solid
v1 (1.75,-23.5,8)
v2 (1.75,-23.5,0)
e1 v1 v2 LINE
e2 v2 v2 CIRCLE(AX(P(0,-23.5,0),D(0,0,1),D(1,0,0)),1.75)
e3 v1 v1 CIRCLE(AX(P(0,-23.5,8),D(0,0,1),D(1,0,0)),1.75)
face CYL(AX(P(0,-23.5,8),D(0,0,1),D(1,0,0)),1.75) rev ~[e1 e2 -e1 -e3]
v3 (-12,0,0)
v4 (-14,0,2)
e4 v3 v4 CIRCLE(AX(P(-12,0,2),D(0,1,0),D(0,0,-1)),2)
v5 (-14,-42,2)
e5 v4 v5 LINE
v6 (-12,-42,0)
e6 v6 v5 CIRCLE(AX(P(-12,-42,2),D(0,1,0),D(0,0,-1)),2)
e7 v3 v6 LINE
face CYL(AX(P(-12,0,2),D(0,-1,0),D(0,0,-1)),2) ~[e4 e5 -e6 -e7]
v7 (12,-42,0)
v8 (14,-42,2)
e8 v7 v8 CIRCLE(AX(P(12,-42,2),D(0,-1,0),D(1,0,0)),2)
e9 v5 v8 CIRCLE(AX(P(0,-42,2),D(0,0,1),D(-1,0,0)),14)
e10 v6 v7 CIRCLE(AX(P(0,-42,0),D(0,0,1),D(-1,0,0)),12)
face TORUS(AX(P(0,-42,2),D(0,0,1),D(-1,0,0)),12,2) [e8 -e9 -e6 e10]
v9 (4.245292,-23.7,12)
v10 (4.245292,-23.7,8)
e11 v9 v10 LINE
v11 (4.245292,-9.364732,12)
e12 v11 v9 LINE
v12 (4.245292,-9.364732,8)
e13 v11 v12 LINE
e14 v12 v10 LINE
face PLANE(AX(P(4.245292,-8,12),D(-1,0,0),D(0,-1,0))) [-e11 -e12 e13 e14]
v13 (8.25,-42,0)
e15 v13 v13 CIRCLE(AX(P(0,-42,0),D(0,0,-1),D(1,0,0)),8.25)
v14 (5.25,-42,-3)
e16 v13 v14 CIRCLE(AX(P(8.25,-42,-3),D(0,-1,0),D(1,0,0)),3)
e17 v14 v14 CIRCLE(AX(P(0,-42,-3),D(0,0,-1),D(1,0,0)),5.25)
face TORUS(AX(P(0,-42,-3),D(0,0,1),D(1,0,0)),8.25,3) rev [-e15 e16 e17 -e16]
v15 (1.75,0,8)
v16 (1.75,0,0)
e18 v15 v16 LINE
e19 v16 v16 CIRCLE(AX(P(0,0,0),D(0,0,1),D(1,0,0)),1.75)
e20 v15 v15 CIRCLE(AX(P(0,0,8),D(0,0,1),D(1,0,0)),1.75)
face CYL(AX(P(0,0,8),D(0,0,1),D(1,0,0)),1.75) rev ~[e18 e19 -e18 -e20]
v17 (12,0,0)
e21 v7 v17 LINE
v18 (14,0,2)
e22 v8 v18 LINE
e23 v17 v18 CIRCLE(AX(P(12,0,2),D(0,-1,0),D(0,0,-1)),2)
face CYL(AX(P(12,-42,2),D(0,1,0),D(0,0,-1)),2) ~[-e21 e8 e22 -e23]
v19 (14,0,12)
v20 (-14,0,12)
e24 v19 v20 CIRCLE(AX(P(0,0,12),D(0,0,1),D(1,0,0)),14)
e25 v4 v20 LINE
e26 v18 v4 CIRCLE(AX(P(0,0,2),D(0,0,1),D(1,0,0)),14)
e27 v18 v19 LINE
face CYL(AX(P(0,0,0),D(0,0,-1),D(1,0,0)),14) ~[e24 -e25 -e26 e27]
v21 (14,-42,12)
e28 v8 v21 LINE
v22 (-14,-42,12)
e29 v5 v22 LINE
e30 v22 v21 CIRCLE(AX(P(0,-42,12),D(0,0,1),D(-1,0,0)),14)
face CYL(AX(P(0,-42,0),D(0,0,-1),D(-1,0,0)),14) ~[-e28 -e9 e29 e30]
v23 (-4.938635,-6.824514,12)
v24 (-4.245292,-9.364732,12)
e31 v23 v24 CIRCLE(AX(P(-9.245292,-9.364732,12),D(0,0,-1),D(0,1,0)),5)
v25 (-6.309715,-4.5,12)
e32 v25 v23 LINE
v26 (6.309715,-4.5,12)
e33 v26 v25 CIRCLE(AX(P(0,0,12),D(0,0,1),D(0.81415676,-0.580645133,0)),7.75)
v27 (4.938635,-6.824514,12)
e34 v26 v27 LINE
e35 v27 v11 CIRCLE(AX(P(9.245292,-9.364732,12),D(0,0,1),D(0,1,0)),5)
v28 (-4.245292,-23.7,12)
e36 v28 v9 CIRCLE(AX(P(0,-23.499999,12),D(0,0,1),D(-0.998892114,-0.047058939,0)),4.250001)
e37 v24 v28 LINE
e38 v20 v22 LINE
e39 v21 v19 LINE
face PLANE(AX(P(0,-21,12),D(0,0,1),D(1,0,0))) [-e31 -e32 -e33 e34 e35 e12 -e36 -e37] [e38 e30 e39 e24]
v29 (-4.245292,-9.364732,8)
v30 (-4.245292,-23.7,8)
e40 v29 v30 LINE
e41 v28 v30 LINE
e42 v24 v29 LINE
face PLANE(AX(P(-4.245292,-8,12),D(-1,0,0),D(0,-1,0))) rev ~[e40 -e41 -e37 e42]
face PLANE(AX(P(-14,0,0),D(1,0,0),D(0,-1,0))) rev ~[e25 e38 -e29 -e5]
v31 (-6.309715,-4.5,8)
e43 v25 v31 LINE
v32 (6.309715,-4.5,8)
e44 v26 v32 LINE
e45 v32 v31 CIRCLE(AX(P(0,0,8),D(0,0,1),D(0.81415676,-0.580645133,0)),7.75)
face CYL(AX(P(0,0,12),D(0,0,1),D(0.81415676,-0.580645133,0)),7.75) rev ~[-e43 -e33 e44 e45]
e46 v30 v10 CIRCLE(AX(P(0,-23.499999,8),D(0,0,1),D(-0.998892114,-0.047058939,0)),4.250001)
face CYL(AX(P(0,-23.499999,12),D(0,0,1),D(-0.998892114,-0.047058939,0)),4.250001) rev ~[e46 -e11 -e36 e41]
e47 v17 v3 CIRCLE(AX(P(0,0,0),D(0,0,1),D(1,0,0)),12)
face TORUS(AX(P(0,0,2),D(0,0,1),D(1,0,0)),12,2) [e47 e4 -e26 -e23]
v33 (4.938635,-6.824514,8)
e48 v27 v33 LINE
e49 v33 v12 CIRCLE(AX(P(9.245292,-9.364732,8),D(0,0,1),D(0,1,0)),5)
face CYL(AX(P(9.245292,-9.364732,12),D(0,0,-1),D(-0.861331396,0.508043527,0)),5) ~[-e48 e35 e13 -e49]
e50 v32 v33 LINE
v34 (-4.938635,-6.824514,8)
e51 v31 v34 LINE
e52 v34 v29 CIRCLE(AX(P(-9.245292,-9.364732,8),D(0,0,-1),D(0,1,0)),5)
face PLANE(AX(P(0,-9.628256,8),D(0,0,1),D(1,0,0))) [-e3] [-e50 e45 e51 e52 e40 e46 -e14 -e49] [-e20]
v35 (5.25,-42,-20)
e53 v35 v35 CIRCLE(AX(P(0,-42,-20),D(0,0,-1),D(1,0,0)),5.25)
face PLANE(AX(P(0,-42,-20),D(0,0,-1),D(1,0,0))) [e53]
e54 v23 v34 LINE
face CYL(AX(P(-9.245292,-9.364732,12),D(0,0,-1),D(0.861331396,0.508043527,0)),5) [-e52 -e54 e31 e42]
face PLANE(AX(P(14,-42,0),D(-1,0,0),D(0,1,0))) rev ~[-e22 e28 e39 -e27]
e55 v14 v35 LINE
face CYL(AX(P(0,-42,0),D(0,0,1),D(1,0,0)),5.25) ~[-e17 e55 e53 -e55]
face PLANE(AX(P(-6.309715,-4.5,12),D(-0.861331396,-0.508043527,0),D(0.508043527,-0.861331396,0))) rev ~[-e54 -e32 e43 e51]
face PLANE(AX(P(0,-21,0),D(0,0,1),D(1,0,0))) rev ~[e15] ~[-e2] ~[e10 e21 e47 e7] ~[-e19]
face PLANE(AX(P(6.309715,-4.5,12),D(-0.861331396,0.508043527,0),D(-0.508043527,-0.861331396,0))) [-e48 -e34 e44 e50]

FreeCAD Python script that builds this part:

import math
import FreeCAD as App
import Part
import Sketcher
from FreeCAD import Vector


def edges_at(feature, points):
    """Names of the edges that pass closest to the given points."""
    edges = feature.Shape.Edges
    near = lambda p: min(range(len(edges)), key=lambda i: edges[i].distToShape(Part.Vertex(*p))[0])
    return sorted({f"Edge{near(p) + 1}" for p in points})

doc = App.newDocument("Part")
body = doc.addObject("PartDesign::Body", "Body")

sketch1 = body.newObject("Sketcher::SketchObject", "Sketch")
sketch1.AttachmentSupport = (doc.getObject("XY_Plane"), [""])
sketch1.MapMode = "FlatFace"
sketch1.addGeometry(Part.ArcOfCircle(Part.Circle(Vector(0, 0, 0), Vector(0, 0, 1), 14), math.radians(0), math.radians(180)), False)
sketch1.addGeometry(Part.LineSegment(Vector(-14, 0, 0), Vector(-14, -42, 0)), False)
sketch1.addGeometry(Part.ArcOfCircle(Part.Circle(Vector(0, -42, 0), Vector(0, 0, 1), 14), math.radians(180), math.radians(360)), False)
sketch1.addGeometry(Part.LineSegment(Vector(14, -42, 0), Vector(14, 0, 0)), False)
sketch1.addConstraint(Sketcher.Constraint("Tangent", 0, 2, 1, 1))
sketch1.addConstraint(Sketcher.Constraint("Tangent", 1, 2, 2, 1))
sketch1.addConstraint(Sketcher.Constraint("Tangent", 2, 2, 3, 1))
sketch1.addConstraint(Sketcher.Constraint("Tangent", 3, 2, 0, 1))
sketch1.addConstraint(Sketcher.Constraint("Vertical", 1))
sketch1.addConstraint(Sketcher.Constraint("Vertical", 3))
sketch1.addConstraint(Sketcher.Constraint("Coincident", 0, 3, -1, 1))
sketch1.addConstraint(Sketcher.Constraint("Radius", 0, 14.0))
sketch1.addConstraint(Sketcher.Constraint("DistanceY", 1, 2, 1, 1, 42.0))
pad1 = body.newObject("PartDesign::Pad", "Pad")
pad1.Profile = sketch1
pad1.Length = 12

sketch2 = body.newObject("Sketcher::SketchObject", "Sketch001")
sketch2.AttachmentSupport = (doc.getObject("XY_Plane"), [""])
sketch2.MapMode = "FlatFace"
sketch2.AttachmentOffset = App.Placement(Vector(0, 0, 12), App.Rotation())
sketch2.addGeometry(Part.ArcOfCircle(Part.Circle(Vector(0, 0, 0), Vector(0, 0, 1), 7.8), math.radians(-35), math.radians(215)), False)
sketch2.addGeometry(Part.LineSegment(Vector(-6.3, -4.5, 0), Vector(-4.2, -8, 0)), False)
sketch2.addGeometry(Part.LineSegment(Vector(-4.2, -8, 0), Vector(-4.2, -23.7, 0)), False)
sketch2.addGeometry(Part.ArcOfCircle(Part.Circle(Vector(0, -23.5, 0), Vector(0, 0, 1), 4.3), math.radians(-177), math.radians(-3)), False)
sketch2.addGeometry(Part.LineSegment(Vector(4.2, -23.7, 0), Vector(4.2, -8, 0)), False)
sketch2.addGeometry(Part.LineSegment(Vector(4.2, -8, 0), Vector(6.3, -4.5, 0)), False)
sketch2.addConstraint(Sketcher.Constraint("Coincident", 0, 2, 1, 1))
sketch2.addConstraint(Sketcher.Constraint("Coincident", 1, 2, 2, 1))
sketch2.addConstraint(Sketcher.Constraint("Coincident", 2, 2, 3, 1))
sketch2.addConstraint(Sketcher.Constraint("Coincident", 3, 2, 4, 1))
sketch2.addConstraint(Sketcher.Constraint("Coincident", 4, 2, 5, 1))
sketch2.addConstraint(Sketcher.Constraint("Coincident", 5, 2, 0, 1))
sketch2.addConstraint(Sketcher.Constraint("Vertical", 2))
sketch2.addConstraint(Sketcher.Constraint("Vertical", 4))
sketch2.addConstraint(Sketcher.Constraint("Coincident", 0, 3, -1, 1))
sketch2.addConstraint(Sketcher.Constraint("Symmetric", 2, 2, 3, 2, -2))
sketch2.addConstraint(Sketcher.Constraint("Horizontal", 1, 2, 4, 2))
sketch2.addConstraint(Sketcher.Constraint("Horizontal", 0, 2, 5, 2))
sketch2.addConstraint(Sketcher.Constraint("Radius", 0, 7.75))
sketch2.addConstraint(Sketcher.Constraint("Radius", 3, 4.250001))
sketch2.addConstraint(Sketcher.Constraint("DistanceY", 2, 2, 2, 1, 15.7))
sketch2.addConstraint(Sketcher.Constraint("DistanceY", 1, 2, -1, 1, 8.0))
sketch2.addConstraint(Sketcher.Constraint("DistanceY", 3, 3, 0, 2, 18.999999))
sketch2.addConstraint(Sketcher.Constraint("DistanceY", 3, 3, -1, 1, 23.499999))
pocket1 = body.newObject("PartDesign::Pocket", "Pocket")
pocket1.Profile = sketch2
pocket1.Length = 4

sketch3 = body.newObject("Sketcher::SketchObject", "Sketch002")
sketch3.AttachmentSupport = (doc.getObject("XY_Plane"), [""])
sketch3.MapMode = "FlatFace"
sketch3.addGeometry(Part.Circle(Vector(0, -42, 0), Vector(0, 0, 1), 5), False)
sketch3.addConstraint(Sketcher.Constraint("PointOnObject", 0, 3, -2))
sketch3.addConstraint(Sketcher.Constraint("Diameter", 0, 10.5))
sketch3.addConstraint(Sketcher.Constraint("DistanceY", 0, 3, -1, 1, 42.0))
pad2 = body.newObject("PartDesign::Pad", "Pad001")
pad2.Profile = sketch3
pad2.Length = 20
pad2.Reversed = True

sketch4 = body.newObject("Sketcher::SketchObject", "Sketch003")
sketch4.AttachmentSupport = (doc.getObject("XY_Plane"), [""])
sketch4.MapMode = "FlatFace"
sketch4.AttachmentOffset = App.Placement(Vector(0, 0, 8), App.Rotation())
sketch4.addGeometry(Part.Circle(Vector(0, 0, 0), Vector(0, 0, 1), 1.8), False)
sketch4.addGeometry(Part.Circle(Vector(0, -23.5, 0), Vector(0, 0, 1), 1.8), False)
sketch4.addConstraint(Sketcher.Constraint("Coincident", 0, 3, -1, 1))
sketch4.addConstraint(Sketcher.Constraint("Equal", 0, 1))
sketch4.addConstraint(Sketcher.Constraint("PointOnObject", 1, 3, -2))
sketch4.addConstraint(Sketcher.Constraint("Diameter", 0, 3.5))
sketch4.addConstraint(Sketcher.Constraint("DistanceY", 1, 3, -1, 1, 23.5))
pocket2 = body.newObject("PartDesign::Pocket", "Pocket001")
pocket2.Profile = sketch4
pocket2.Type = "ThroughAll"
doc.recompute()

fillet = body.newObject("PartDesign::Fillet", "Fillet")
fillet.Base = (pocket2, edges_at(pocket2, [(-5.25, -42, 0)]))
fillet.Radius = 3
doc.recompute()

fillet2 = body.newObject("PartDesign::Fillet", "Fillet001")
fillet2.Base = (fillet, edges_at(fillet, [
    (-14, -21, 0),
    (0, 14, 0),
    (14, -21, 0),
    (0, -56, 0),
]))
fillet2.Radius = 2
doc.recompute()

fillet3 = body.newObject("PartDesign::Fillet", "Fillet002")
fillet3.Base = (fillet2, edges_at(fillet2, [(-4.245, -8, 10), (4.245, -8, 10)]))
fillet3.Radius = 5

doc.recompute()
